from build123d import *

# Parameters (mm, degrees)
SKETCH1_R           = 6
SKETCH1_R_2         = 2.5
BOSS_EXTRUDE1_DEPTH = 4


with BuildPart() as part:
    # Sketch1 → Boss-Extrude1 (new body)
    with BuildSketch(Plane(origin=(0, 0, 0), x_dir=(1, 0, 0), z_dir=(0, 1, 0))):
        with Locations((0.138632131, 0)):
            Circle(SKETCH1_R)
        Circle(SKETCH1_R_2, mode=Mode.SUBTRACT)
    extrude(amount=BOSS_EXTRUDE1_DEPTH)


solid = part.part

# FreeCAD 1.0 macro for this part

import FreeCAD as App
import Part
import Sketcher
from FreeCAD import Vector

doc = App.newDocument("Part")
body = doc.addObject("PartDesign::Body", "Body")

sketch1 = body.newObject("Sketcher::SketchObject", "Sketch")
sketch1.AttachmentSupport = (doc.getObject("XZ_Plane"), [""])
sketch1.MapMode = "FlatFace"
sketch1.addGeometry([
    Part.Circle(Vector(0.1, 0, 0), Vector(0, 0, 1), 6),
    Part.Circle(Vector(0, 0, 0), Vector(0, 0, 1), 2.5),
], False)
sketch1.addConstraint([
    Sketcher.Constraint("Coincident", 1, 3, -1, 1),
    Sketcher.Constraint("PointOnObject", 0, 3, -1),
    Sketcher.Constraint("Diameter", 0, 12.0),
    Sketcher.Constraint("Diameter", 1, 5.0),
    Sketcher.Constraint("DistanceX", -1, 1, 0, 3, 0.138632),
])
pad1 = body.newObject("PartDesign::Pad", "Pad")
pad1.Profile = sketch1
pad1.Length = 4
pad1.Reversed = True

doc.recompute()
